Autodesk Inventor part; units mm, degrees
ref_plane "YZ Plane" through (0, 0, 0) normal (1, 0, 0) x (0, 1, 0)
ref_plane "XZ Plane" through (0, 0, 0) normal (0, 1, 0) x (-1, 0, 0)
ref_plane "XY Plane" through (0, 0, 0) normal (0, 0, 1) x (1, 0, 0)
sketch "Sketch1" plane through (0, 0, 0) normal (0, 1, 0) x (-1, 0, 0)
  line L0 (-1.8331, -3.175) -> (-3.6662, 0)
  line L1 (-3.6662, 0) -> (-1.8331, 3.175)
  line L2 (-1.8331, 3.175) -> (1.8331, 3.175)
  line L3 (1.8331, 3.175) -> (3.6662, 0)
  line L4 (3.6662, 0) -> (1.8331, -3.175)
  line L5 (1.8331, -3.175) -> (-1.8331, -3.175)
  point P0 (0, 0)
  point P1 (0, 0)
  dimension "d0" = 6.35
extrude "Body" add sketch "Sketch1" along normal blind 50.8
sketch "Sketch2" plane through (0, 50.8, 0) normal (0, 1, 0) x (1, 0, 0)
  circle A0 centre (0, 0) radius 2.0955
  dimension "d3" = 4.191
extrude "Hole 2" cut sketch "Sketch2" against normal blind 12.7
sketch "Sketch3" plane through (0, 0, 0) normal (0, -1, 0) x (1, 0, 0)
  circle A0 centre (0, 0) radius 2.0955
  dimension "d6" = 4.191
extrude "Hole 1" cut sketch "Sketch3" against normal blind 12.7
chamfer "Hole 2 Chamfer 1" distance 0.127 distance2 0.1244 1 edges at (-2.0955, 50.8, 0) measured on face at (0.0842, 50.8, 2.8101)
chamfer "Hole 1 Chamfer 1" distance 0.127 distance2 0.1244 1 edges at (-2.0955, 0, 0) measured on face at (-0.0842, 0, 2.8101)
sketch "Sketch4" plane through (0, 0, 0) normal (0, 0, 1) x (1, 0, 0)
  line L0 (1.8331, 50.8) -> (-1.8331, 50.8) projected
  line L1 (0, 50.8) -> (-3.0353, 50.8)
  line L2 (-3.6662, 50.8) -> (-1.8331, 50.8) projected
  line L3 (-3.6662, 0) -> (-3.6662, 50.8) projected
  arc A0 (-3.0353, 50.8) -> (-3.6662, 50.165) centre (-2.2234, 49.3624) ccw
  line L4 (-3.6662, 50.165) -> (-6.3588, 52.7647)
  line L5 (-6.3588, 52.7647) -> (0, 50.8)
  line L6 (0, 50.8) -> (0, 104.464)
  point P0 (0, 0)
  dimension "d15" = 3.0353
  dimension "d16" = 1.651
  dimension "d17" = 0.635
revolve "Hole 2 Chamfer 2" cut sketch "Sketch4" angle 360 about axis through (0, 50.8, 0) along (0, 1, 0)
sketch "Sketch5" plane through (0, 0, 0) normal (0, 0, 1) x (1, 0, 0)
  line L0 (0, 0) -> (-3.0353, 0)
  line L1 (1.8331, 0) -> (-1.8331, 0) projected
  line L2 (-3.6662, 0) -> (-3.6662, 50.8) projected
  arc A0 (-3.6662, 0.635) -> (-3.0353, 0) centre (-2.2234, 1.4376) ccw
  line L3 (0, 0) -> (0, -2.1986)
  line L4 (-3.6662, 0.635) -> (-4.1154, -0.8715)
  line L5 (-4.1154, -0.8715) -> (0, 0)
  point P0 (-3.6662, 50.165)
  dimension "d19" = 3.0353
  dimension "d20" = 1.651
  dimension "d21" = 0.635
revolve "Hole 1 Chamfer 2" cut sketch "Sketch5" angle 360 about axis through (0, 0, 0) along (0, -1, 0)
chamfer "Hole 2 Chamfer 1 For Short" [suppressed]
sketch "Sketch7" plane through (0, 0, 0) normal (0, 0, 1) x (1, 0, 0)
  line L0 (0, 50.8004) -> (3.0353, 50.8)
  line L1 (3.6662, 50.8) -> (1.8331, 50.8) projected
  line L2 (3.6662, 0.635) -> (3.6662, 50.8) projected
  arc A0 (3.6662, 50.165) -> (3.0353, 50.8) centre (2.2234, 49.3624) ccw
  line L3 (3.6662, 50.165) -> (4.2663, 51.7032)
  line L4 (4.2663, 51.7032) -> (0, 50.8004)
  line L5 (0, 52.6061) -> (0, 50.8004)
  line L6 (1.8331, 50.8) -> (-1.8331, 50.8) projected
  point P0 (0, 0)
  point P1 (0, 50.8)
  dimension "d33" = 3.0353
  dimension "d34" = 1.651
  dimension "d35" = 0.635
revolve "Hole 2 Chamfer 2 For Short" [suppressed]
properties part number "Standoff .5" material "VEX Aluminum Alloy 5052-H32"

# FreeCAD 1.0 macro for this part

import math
import FreeCAD as App
import Part
import Sketcher

V = App.Vector
Q = App.Units.Quantity


def edges_at(feature, points):
    """Names of the edges that pass closest to the given points."""
    edges = feature.Shape.Edges
    near = lambda p: min(range(len(edges)), key=lambda i: edges[i].distToShape(Part.Vertex(*p))[0])
    return sorted({f"Edge{near(p) + 1}" for p in points})


def add_polygon(sketch, points):
    """Adds a closed chain of lines whose ends are joined by coincident constraints."""
    first, n = sketch.GeometryCount, len(points)
    for a, b in zip(points, points[1:] + points[:1]):
        sketch.addGeometry(Part.LineSegment(App.Vector(*a, 0), App.Vector(*b, 0)), False)
    for i in range(n):
        sketch.addConstraint(Sketcher.Constraint("Coincident", first + i, 2, first + (i + 1) % n, 1))

doc = App.newDocument("Part")
params = doc.addObject("Spreadsheet::Sheet", "Params")
for row, (alias, value) in enumerate([
    ("pad1_length", "2 in"),
    ("sketch2_diameter", "0.165 in"),
    ("pocket1_length", "0.5 in"),
    ("sketch3_diameter", "0.165 in"),
    ("pocket2_length", "0.5 in"),
    ("chamfer_size", "0.005 in"),
    ("chamfer_size2", "0.0048976 in"),
    ("chamfer2_size", "0.005 in"),
    ("chamfer2_size2", "0.0048976 in"),
    ("sketch4_radius", "0.065 in"),
    ("groove_angle", "360 deg"),
    ("sketch5_radius", "0.065 in"),
    ("groove2_angle", "360 deg"),
], start=1):
    params.set(f"A{row}", alias)
    params.set(f"B{row}", "=" + value)
    params.setAlias(f"B{row}", alias)

body = doc.addObject("PartDesign::Body", "Body")

sketch1 = doc.addObject("Sketcher::SketchObject", "Sketch")
body.addObject(sketch1)
sketch1.AttachmentSupport = (doc.XZ_Plane, [""])
sketch1.MapMode = "FlatFace"
add_polygon(sketch1, [(3.7, 0), (1.8, -3.2), (-1.8, -3.2), (-3.7, 0), (-1.8, 3.2), (1.8, 3.2)])
sketch1.addConstraint(Sketcher.Constraint("Horizontal", 1))
sketch1.addConstraint(Sketcher.Constraint("Horizontal", 4))
sketch1.addConstraint(Sketcher.Constraint("Symmetric", 0, 2, 3, 2, -1, 1))
sketch1.addConstraint(Sketcher.Constraint("Symmetric", 2, 2, 5, 2, -1, 1))
sketch1.addConstraint(Sketcher.Constraint("PointOnObject", 2, 2, -1))
sketch1.addConstraint(Sketcher.Constraint("Parallel", 2, 5))
sketch1.addConstraint(Sketcher.Constraint("Vertical", 1, 2, 3, 2))
sketch1.addConstraint(Sketcher.Constraint("DistanceY", 1, 2, 3, 2, Q("0.25 in")))
sketch1.addConstraint(Sketcher.Constraint("Angle", 0, Q("-120.0002 deg")))
sketch1.addConstraint(Sketcher.Constraint("DistanceX", 1, 2, 1, 1, 3.6662))
pad1 = doc.addObject("PartDesign::Pad", "Pad")
body.addObject(pad1)
pad1.Profile = sketch1
pad1.setExpression("Length", "Params.pad1_length")
pad1.Reversed = True

sketch2 = doc.addObject("Sketcher::SketchObject", "Sketch001")
body.addObject(sketch2)
sketch2.AttachmentSupport = (doc.XZ_Plane, [""])
sketch2.MapMode = "FlatFace"
sketch2.AttachmentOffset = App.Placement(V(0, 0, -2 * 25.4), App.Rotation())
sketch2.addGeometry(Part.Circle(V(0, 0, 0), V(0, 0, 1), 2.1), False)
sketch2.addConstraint(Sketcher.Constraint("Coincident", 0, 3, -1, 1))
sketch2.addConstraint(Sketcher.Constraint("Diameter", 0, Q("0.165 in")))
sketch2.setExpression("Constraints[1]", "Params.sketch2_diameter")
pocket1 = doc.addObject("PartDesign::Pocket", "Pocket")
body.addObject(pocket1)
pocket1.Profile = sketch2
pocket1.setExpression("Length", "Params.pocket1_length")
pocket1.Reversed = True

sketch3 = doc.addObject("Sketcher::SketchObject", "Sketch002")
body.addObject(sketch3)
sketch3.AttachmentSupport = (doc.XZ_Plane, [""])
sketch3.MapMode = "FlatFace"
sketch3.addGeometry(Part.Circle(V(0, 0, 0), V(0, 0, 1), 2.1), False)
sketch3.addConstraint(Sketcher.Constraint("Coincident", 0, 3, -1, 1))
sketch3.addConstraint(Sketcher.Constraint("Diameter", 0, Q("0.165 in")))
sketch3.setExpression("Constraints[1]", "Params.sketch3_diameter")
pocket2 = doc.addObject("PartDesign::Pocket", "Pocket001")
body.addObject(pocket2)
pocket2.Profile = sketch3
pocket2.setExpression("Length", "Params.pocket2_length")
doc.recompute()

chamfer = doc.addObject("PartDesign::Chamfer", "Chamfer")
body.addObject(chamfer)
chamfer.Base = (pocket2, edges_at(pocket2, [(-2.095, 50.8, 0)]))
chamfer.ChamferType = "Two distances"
chamfer.setExpression("Size", "Params.chamfer_size")
chamfer.setExpression("Size2", "Params.chamfer_size2")
doc.recompute()

chamfer2 = doc.addObject("PartDesign::Chamfer", "Chamfer001")
body.addObject(chamfer2)
chamfer2.Base = (chamfer, edges_at(chamfer, [(-2.095, 0, 0)]))
chamfer2.ChamferType = "Two distances"
chamfer2.setExpression("Size", "Params.chamfer2_size")
chamfer2.setExpression("Size2", "Params.chamfer2_size2")

sketch4 = doc.addObject("Sketcher::SketchObject", "Sketch003")
body.addObject(sketch4)
sketch4.AttachmentSupport = (doc.XY_Plane, [""])
sketch4.MapMode = "FlatFace"
sketch4.addGeometry(Part.LineSegment(V(0, 50.8, 0), V(-6.4, 52.8, 0)), False)
sketch4.addGeometry(Part.LineSegment(V(-6.4, 52.8, 0), V(-3.7, 50.2, 0)), False)
sketch4.addGeometry(Part.ArcOfCircle(Part.Circle(V(-2.2, 49.4, 0), V(0, 0, 1), 1.7), math.radians(119), math.radians(151)), False)
sketch4.addGeometry(Part.LineSegment(V(-3, 50.8, 0), V(0, 50.8, 0)), False)
sketch4.addConstraint(Sketcher.Constraint("Coincident", 0, 2, 1, 1))
sketch4.addConstraint(Sketcher.Constraint("Coincident", 1, 2, 2, 2))
sketch4.addConstraint(Sketcher.Constraint("Coincident", 2, 1, 3, 1))
sketch4.addConstraint(Sketcher.Constraint("Coincident", 3, 2, 0, 1))
sketch4.addConstraint(Sketcher.Constraint("Horizontal", 3))
sketch4.addConstraint(Sketcher.Constraint("PointOnObject", 3, 2, -2))
sketch4.addConstraint(Sketcher.Constraint("Radius", 2, Q("0.065 in")))
sketch4.addConstraint(Sketcher.Constraint("DistanceX", 3, 1, 3, 2, Q("0.1195 in")))
sketch4.addConstraint(Sketcher.Constraint("DistanceY", -1, 1, 2, 1, Q("2 in")))
sketch4.addConstraint(Sketcher.Constraint("DistanceY", 1, 2, 2, 1, Q("0.025 in")))
sketch4.addConstraint(Sketcher.Constraint("Angle", 0, Q("162.8302 deg")))
sketch4.addConstraint(Sketcher.Constraint("DistanceX", 0, 2, 1, 2, Q("0.106 in")))
sketch4.addConstraint(Sketcher.Constraint("DistanceY", -1, 1, 2, 3, Q("1.9434 in")))
sketch4.setExpression("Constraints[6]", "Params.sketch4_radius")
groove = doc.addObject("PartDesign::Groove", "Groove")
body.addObject(groove)
groove.Profile = sketch4
groove.ReferenceAxis = (sketch4, ["V_Axis"])
groove.setExpression("Angle", "Params.groove_angle")

sketch5 = doc.addObject("Sketcher::SketchObject", "Sketch004")
body.addObject(sketch5)
sketch5.AttachmentSupport = (doc.XY_Plane, [""])
sketch5.MapMode = "FlatFace"
sketch5.addGeometry(Part.LineSegment(V(-4.1, -0.9, 0), V(0, 0, 0)), False)
sketch5.addGeometry(Part.LineSegment(V(0, 0, 0), V(-3, 0, 0)), False)
sketch5.addGeometry(Part.ArcOfCircle(Part.Circle(V(-2.2, 1.4, 0), V(0, 0, 1), 1.7), math.radians(-151), math.radians(-119)), False)
sketch5.addGeometry(Part.LineSegment(V(-3.7, 0.6, 0), V(-4.1, -0.9, 0)), False)
sketch5.addConstraint(Sketcher.Constraint("Coincident", 0, 2, 1, 1))
sketch5.addConstraint(Sketcher.Constraint("Coincident", 1, 2, 2, 2))
sketch5.addConstraint(Sketcher.Constraint("Coincident", 2, 1, 3, 1))
sketch5.addConstraint(Sketcher.Constraint("Coincident", 3, 2, 0, 1))
sketch5.addConstraint(Sketcher.Constraint("Horizontal", 1))
sketch5.addConstraint(Sketcher.Constraint("Coincident", 0, 2, -1, 1))
sketch5.addConstraint(Sketcher.Constraint("Radius", 2, Q("0.065 in")))
sketch5.addConstraint(Sketcher.Constraint("DistanceX", 1, 2, 1, 1, Q("0.1195 in")))
sketch5.addConstraint(Sketcher.Constraint("DistanceY", -1, 1, 2, 1, Q("0.025 in")))
sketch5.addConstraint(Sketcher.Constraint("Distance", 3, Q("0.0619 in")))
sketch5.addConstraint(Sketcher.Constraint("DistanceY", -1, 1, 2, 3, Q("0.0566 in")))
sketch5.addConstraint(Sketcher.Constraint("DistanceY", 3, 2, -1, 1, Q("0.0343 in")))
sketch5.setExpression("Constraints[6]", "Params.sketch5_radius")
groove2 = doc.addObject("PartDesign::Groove", "Groove001")
body.addObject(groove2)
groove2.Profile = sketch5
groove2.ReferenceAxis = (sketch5, ["V_Axis"])
groove2.setExpression("Angle", "Params.groove2_angle")

doc.recompute()
